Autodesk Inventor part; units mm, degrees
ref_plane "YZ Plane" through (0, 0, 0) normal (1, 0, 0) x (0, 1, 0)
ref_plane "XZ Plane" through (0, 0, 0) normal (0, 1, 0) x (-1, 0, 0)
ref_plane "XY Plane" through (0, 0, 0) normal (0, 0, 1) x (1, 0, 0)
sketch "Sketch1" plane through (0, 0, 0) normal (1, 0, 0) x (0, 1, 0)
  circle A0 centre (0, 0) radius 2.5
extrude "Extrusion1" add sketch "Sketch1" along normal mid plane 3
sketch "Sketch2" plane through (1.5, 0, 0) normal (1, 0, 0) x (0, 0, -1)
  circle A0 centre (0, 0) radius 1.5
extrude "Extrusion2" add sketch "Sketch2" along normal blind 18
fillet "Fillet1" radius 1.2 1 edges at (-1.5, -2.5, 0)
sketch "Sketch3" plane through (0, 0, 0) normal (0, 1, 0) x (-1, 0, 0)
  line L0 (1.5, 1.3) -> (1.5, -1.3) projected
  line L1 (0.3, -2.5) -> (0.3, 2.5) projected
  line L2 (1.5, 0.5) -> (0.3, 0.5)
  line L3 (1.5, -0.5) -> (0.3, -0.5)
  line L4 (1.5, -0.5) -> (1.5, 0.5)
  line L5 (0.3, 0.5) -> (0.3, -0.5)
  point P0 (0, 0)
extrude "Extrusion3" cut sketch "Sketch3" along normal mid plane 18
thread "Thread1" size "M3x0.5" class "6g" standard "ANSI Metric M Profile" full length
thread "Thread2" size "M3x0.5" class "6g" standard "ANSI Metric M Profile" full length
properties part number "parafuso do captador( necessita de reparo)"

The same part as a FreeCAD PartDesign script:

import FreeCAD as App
import Part
import Sketcher
from FreeCAD import Vector


def edges_at(feature, points):
    """Names of the edges that pass closest to the given points."""
    edges = feature.Shape.Edges
    near = lambda p: min(range(len(edges)), key=lambda i: edges[i].distToShape(Part.Vertex(*p))[0])
    return sorted({f"Edge{near(p) + 1}" for p in points})


def add_polygon(sketch, points):
    """Adds a closed chain of lines whose ends are joined by coincident constraints."""
    first, n = sketch.GeometryCount, len(points)
    for a, b in zip(points, points[1:] + points[:1]):
        sketch.addGeometry(Part.LineSegment(App.Vector(*a, 0), App.Vector(*b, 0)), False)
    for i in range(n):
        sketch.addConstraint(Sketcher.Constraint("Coincident", first + i, 2, first + (i + 1) % n, 1))

doc = App.newDocument("Part")
body = doc.addObject("PartDesign::Body", "Body")

# Sketch on YZ plane
sketch1 = body.newObject("Sketcher::SketchObject", "Sketch")
sketch1.AttachmentSupport = (doc.getObject("YZ_Plane"), [""])
sketch1.MapMode = "FlatFace"
sketch1.addGeometry(Part.Circle(Vector(0, 0, 0), Vector(0, 0, 1), 2.5), False)
sketch1.addConstraint(Sketcher.Constraint("Coincident", 0, 3, -1, 1))
sketch1.addConstraint(Sketcher.Constraint("Diameter", 0, 5.0))
pad1 = body.newObject("PartDesign::Pad", "Pad")
pad1.Profile = sketch1
pad1.Length = 3
pad1.Midplane = True

# Sketch on YZ plane
sketch2 = body.newObject("Sketcher::SketchObject", "Sketch001")
sketch2.AttachmentSupport = (doc.getObject("YZ_Plane"), [""])
sketch2.MapMode = "FlatFace"
sketch2.AttachmentOffset = App.Placement(Vector(0, 0, 1.5), App.Rotation())
sketch2.addGeometry(Part.Circle(Vector(0, 0, 0), Vector(0, 0, 1), 1.5), False)
sketch2.addConstraint(Sketcher.Constraint("Coincident", 0, 3, -1, 1))
sketch2.addConstraint(Sketcher.Constraint("Diameter", 0, 3.0))
pad2 = body.newObject("PartDesign::Pad", "Pad001")
pad2.Profile = sketch2
pad2.Length = 18
doc.recompute()

fillet = body.newObject("PartDesign::Fillet", "Fillet")
fillet.Base = (pad2, edges_at(pad2, [(-1.5, -2.5, 0)]))
fillet.Radius = 1.2

# Sketch on XZ plane
sketch3 = body.newObject("Sketcher::SketchObject", "Sketch002")
sketch3.AttachmentSupport = (doc.getObject("XZ_Plane"), [""])
sketch3.MapMode = "FlatFace"
add_polygon(sketch3, [(-1.5, -0.5), (-1.5, 0.5), (-0.3, 0.5), (-0.3, -0.5)])  # lines 0-3
sketch3.addConstraint(Sketcher.Constraint("Vertical", 0))
sketch3.addConstraint(Sketcher.Constraint("Horizontal", 1))
sketch3.addConstraint(Sketcher.Constraint("Vertical", 2))
sketch3.addConstraint(Sketcher.Constraint("Horizontal", 3))
sketch3.addConstraint(Sketcher.Constraint("DistanceY", 0, 1, 0, 2, 1.0))
sketch3.addConstraint(Sketcher.Constraint("DistanceX", 1, 1, 1, 2, 1.2))
sketch3.addConstraint(Sketcher.Constraint("DistanceX", 0, 2, -1, 1, 1.5))
sketch3.addConstraint(Sketcher.Constraint("DistanceY", -1, 1, 0, 2, 0.5))
pocket1 = body.newObject("PartDesign::Pocket", "Pocket")
pocket1.Profile = sketch3
pocket1.Length = 18
pocket1.Midplane = True

doc.recompute()
